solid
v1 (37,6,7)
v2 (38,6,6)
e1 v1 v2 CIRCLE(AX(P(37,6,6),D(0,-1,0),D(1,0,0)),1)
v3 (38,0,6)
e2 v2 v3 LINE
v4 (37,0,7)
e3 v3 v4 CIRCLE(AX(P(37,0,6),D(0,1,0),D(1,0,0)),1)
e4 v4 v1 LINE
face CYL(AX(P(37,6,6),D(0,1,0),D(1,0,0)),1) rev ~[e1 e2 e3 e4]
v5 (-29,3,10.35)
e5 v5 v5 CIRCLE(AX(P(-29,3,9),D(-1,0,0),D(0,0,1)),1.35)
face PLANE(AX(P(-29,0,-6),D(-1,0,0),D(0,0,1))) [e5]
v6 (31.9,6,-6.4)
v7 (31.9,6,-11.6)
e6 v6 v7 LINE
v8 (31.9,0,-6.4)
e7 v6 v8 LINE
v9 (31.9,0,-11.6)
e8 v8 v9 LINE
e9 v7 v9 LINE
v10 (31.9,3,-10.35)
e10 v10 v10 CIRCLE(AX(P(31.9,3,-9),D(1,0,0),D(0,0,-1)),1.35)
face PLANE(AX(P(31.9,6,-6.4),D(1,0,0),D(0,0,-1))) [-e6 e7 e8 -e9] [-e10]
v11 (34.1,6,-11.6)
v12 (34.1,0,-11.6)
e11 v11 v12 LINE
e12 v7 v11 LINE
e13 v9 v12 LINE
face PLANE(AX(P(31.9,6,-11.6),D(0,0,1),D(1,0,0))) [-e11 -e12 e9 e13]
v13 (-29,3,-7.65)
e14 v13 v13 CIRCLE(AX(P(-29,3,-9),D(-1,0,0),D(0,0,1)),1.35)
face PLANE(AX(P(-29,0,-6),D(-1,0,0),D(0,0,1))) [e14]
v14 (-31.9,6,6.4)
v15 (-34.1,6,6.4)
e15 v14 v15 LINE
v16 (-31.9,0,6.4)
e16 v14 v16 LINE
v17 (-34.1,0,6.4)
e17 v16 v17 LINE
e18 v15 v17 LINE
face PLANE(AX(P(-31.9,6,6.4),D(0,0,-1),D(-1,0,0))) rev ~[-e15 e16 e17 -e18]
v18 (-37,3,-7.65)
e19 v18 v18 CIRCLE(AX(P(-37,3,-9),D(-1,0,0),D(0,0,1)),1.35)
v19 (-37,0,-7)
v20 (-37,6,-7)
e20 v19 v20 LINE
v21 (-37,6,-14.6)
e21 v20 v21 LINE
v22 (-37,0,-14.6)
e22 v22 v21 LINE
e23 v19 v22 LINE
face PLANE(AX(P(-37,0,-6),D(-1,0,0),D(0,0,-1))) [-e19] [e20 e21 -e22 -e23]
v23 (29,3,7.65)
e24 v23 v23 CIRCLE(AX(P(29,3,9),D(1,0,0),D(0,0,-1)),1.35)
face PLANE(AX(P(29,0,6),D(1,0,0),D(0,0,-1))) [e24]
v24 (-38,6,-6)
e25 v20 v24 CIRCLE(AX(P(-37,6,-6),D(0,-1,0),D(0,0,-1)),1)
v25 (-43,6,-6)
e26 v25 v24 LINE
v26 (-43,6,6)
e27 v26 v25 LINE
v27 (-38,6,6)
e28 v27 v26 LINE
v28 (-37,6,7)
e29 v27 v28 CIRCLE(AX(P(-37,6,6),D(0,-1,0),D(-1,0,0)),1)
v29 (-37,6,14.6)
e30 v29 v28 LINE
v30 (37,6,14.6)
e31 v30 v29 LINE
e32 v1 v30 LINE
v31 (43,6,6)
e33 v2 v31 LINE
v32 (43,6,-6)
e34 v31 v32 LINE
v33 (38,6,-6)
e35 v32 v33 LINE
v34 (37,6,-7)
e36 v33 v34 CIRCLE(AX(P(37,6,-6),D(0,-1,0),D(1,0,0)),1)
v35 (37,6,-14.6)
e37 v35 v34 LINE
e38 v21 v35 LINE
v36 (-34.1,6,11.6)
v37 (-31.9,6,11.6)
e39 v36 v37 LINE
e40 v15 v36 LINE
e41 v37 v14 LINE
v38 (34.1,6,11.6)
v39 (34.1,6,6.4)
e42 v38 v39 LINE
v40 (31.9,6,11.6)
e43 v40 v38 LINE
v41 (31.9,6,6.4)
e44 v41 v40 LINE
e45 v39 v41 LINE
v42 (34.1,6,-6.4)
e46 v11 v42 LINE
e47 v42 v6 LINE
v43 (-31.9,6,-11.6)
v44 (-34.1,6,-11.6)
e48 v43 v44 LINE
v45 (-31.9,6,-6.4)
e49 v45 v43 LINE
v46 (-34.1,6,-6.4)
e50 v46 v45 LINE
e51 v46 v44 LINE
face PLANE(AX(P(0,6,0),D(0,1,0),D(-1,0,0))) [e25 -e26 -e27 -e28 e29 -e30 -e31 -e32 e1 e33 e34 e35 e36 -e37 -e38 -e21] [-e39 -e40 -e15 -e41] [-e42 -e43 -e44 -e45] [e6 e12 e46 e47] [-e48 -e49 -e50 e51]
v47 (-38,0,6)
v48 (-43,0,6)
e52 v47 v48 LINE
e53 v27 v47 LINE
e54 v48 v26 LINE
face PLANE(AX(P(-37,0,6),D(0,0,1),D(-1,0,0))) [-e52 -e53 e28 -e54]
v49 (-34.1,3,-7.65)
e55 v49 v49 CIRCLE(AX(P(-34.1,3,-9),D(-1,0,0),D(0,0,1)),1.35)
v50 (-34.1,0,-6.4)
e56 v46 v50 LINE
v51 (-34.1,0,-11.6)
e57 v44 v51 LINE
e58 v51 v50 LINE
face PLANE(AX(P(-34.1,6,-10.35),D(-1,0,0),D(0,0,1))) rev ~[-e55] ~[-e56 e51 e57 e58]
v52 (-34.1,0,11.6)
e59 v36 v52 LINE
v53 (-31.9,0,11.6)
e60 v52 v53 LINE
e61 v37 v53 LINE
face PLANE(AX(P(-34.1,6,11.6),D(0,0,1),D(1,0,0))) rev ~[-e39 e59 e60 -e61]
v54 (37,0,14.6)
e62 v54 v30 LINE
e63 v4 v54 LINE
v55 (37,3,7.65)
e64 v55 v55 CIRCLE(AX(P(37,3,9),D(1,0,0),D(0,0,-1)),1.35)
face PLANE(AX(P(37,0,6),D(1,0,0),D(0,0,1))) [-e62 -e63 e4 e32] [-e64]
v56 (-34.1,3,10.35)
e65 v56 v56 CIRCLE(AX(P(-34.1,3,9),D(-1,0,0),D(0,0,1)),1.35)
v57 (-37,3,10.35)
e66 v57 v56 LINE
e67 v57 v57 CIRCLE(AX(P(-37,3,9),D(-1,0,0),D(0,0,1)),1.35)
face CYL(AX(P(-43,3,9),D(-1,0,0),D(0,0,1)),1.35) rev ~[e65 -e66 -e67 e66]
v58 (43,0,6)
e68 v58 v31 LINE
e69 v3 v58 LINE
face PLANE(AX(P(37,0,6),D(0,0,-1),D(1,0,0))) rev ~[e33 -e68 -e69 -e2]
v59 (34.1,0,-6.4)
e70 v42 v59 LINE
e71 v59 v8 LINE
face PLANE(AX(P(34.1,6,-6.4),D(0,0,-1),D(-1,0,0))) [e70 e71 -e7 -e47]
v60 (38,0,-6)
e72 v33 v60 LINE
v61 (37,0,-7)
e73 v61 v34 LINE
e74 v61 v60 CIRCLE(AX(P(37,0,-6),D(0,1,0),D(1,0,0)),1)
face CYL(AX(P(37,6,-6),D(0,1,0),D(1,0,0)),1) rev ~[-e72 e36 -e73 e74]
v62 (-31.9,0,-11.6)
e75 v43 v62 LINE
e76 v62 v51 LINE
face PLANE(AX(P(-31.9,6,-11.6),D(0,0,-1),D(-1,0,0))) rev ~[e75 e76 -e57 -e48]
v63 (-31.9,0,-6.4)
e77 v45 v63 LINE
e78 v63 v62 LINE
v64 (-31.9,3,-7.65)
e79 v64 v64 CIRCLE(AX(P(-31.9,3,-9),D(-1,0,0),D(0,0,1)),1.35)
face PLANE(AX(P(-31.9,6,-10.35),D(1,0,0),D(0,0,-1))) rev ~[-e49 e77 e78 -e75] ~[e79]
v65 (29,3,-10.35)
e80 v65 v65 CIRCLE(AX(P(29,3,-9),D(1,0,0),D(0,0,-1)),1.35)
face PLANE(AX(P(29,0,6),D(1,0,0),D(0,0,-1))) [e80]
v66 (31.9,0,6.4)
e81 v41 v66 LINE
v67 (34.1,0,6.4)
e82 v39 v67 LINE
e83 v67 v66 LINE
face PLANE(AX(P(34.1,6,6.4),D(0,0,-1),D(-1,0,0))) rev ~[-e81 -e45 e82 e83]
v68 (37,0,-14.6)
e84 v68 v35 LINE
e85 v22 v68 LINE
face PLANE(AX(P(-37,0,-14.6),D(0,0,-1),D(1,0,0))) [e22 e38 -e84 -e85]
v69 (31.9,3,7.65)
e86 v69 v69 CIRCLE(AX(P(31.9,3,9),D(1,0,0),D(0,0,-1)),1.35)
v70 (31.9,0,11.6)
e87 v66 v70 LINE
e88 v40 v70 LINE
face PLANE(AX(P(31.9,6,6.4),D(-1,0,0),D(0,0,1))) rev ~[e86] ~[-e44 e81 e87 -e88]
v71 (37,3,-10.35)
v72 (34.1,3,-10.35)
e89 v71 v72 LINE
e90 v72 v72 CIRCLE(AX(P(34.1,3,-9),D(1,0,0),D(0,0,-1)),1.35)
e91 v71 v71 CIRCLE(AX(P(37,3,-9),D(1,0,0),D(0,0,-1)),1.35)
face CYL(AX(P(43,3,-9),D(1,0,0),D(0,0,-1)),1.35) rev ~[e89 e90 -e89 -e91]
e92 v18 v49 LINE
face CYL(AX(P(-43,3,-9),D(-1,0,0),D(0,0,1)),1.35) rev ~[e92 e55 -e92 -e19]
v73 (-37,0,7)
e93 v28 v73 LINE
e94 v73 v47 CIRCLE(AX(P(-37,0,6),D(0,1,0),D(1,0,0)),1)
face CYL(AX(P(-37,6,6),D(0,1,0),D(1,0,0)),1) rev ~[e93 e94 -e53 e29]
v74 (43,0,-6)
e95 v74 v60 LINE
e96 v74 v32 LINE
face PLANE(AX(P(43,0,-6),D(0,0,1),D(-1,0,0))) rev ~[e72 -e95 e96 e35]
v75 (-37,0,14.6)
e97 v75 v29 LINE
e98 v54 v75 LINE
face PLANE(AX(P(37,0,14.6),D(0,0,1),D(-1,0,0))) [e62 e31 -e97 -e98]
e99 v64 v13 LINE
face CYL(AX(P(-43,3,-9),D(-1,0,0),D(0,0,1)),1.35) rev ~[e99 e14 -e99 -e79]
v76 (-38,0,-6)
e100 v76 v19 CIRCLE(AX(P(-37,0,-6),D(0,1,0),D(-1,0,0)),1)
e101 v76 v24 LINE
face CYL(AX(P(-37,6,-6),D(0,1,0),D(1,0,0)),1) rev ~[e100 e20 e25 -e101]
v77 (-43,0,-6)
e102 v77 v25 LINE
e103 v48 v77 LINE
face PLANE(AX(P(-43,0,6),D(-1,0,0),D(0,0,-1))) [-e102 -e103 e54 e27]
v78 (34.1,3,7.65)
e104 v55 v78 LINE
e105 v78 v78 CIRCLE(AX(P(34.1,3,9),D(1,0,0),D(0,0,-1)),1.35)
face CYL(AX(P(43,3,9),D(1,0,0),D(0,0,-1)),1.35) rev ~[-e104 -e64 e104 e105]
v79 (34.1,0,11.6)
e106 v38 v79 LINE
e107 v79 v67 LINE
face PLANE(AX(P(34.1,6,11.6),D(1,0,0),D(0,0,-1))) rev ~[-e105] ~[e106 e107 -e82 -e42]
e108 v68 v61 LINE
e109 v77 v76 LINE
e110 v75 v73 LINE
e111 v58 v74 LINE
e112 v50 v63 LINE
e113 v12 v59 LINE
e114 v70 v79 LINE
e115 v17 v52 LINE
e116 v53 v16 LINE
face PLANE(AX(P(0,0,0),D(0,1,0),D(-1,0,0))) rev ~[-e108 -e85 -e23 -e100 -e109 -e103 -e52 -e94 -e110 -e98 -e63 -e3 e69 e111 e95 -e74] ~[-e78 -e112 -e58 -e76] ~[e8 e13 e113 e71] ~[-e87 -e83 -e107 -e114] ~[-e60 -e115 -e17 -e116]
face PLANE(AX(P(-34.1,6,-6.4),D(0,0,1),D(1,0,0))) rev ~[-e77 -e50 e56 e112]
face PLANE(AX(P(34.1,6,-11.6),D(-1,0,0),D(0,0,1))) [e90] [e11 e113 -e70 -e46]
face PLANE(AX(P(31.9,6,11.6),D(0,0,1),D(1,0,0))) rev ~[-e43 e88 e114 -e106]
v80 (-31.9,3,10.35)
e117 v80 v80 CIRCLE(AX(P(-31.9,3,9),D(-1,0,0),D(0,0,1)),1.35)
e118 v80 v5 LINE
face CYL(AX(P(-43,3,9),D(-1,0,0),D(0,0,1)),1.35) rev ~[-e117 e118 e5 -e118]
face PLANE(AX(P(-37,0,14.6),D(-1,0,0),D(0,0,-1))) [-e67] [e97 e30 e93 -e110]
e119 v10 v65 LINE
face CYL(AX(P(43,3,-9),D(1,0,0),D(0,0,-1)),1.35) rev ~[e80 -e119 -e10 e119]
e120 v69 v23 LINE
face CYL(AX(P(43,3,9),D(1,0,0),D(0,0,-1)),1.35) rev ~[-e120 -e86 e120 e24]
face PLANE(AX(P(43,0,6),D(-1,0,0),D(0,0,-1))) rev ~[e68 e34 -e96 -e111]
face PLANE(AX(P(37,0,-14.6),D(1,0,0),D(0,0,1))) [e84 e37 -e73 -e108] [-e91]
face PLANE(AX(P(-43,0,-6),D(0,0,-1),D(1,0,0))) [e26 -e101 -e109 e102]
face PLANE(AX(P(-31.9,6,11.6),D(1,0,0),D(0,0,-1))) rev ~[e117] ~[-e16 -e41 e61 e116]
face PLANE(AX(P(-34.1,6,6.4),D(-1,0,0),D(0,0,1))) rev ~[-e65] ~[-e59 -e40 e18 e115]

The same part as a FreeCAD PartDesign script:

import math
import FreeCAD as App
import Part
import Sketcher
Q = App.Units.Quantity

doc = App.newDocument("Part")
body = doc.addObject("PartDesign::Body", "Body")

# Sketch on XZ plane
sketch1 = doc.addObject("Sketcher::SketchObject", "Sketch")
body.addObject(sketch1)
sketch1.AttachmentSupport = (doc.XZ_Plane, [""])
sketch1.MapMode = "FlatFace"
sketch1.addGeometry(Part.LineSegment(App.Vector(-37, 15, 0), App.Vector(37, 15, 0)), False)
sketch1.addGeometry(Part.LineSegment(App.Vector(37, 15, 0), App.Vector(37, 6, 0)), False)
sketch1.addGeometry(Part.LineSegment(App.Vector(37, 6, 0), App.Vector(43, 6, 0)), False)
sketch1.addGeometry(Part.LineSegment(App.Vector(43, 6, 0), App.Vector(43, -6, 0)), False)
sketch1.addGeometry(Part.LineSegment(App.Vector(43, -6, 0), App.Vector(37, -6, 0)), False)
sketch1.addGeometry(Part.LineSegment(App.Vector(37, -6, 0), App.Vector(37, -15, 0)), False)
sketch1.addGeometry(Part.LineSegment(App.Vector(37, -15, 0), App.Vector(-37, -15, 0)), False)
sketch1.addGeometry(Part.LineSegment(App.Vector(-37, -15, 0), App.Vector(-37, -6, 0)), False)
sketch1.addGeometry(Part.LineSegment(App.Vector(-37, -6, 0), App.Vector(-43, -6, 0)), False)
sketch1.addGeometry(Part.LineSegment(App.Vector(-43, -6, 0), App.Vector(-43, 6, 0)), False)
sketch1.addGeometry(Part.LineSegment(App.Vector(-43, 6, 0), App.Vector(-37, 6, 0)), False)
sketch1.addGeometry(Part.LineSegment(App.Vector(-37, 6, 0), App.Vector(-37, 15, 0)), False)
sketch1.addConstraint(Sketcher.Constraint("Coincident", 0, 2, 1, 1))
sketch1.addConstraint(Sketcher.Constraint("Coincident", 1, 2, 2, 1))
sketch1.addConstraint(Sketcher.Constraint("Coincident", 2, 2, 3, 1))
sketch1.addConstraint(Sketcher.Constraint("Coincident", 3, 2, 4, 1))
sketch1.addConstraint(Sketcher.Constraint("Coincident", 4, 2, 5, 1))
sketch1.addConstraint(Sketcher.Constraint("Coincident", 5, 2, 6, 1))
sketch1.addConstraint(Sketcher.Constraint("Coincident", 6, 2, 7, 1))
sketch1.addConstraint(Sketcher.Constraint("Coincident", 7, 2, 8, 1))
sketch1.addConstraint(Sketcher.Constraint("Coincident", 8, 2, 9, 1))
sketch1.addConstraint(Sketcher.Constraint("Coincident", 9, 2, 10, 1))
sketch1.addConstraint(Sketcher.Constraint("Coincident", 10, 2, 11, 1))
sketch1.addConstraint(Sketcher.Constraint("Coincident", 11, 2, 0, 1))
sketch1.addConstraint(Sketcher.Constraint("Horizontal", 0))
sketch1.addConstraint(Sketcher.Constraint("Vertical", 1))
sketch1.addConstraint(Sketcher.Constraint("Horizontal", 2))
sketch1.addConstraint(Sketcher.Constraint("Vertical", 3))
sketch1.addConstraint(Sketcher.Constraint("Horizontal", 4))
sketch1.addConstraint(Sketcher.Constraint("Vertical", 5))
sketch1.addConstraint(Sketcher.Constraint("Horizontal", 6))
sketch1.addConstraint(Sketcher.Constraint("Vertical", 7))
sketch1.addConstraint(Sketcher.Constraint("Horizontal", 8))
sketch1.addConstraint(Sketcher.Constraint("Vertical", 9))
sketch1.addConstraint(Sketcher.Constraint("Horizontal", 10))
sketch1.addConstraint(Sketcher.Constraint("Vertical", 11))
sketch1.addConstraint(Sketcher.Constraint("Symmetric", 0, 2, 6, 2, -1, 1))
sketch1.addConstraint(Sketcher.Constraint("Symmetric", 2, 2, 8, 2, -1, 1))
sketch1.addConstraint(Sketcher.Constraint("Symmetric", 4, 2, 10, 2, -1, 1))
sketch1.addConstraint(Sketcher.Constraint("Symmetric", 4, 2, 7, 2, -2))
sketch1.addConstraint(Sketcher.Constraint("DistanceX", 0, 1, 0, 2, Q("74 mm")))
sketch1.addConstraint(Sketcher.Constraint("DistanceX", 2, 1, 2, 2, Q("6 mm")))
sketch1.addConstraint(Sketcher.Constraint("DistanceY", 3, 2, 3, 1, Q("12 mm")))
sketch1.addConstraint(Sketcher.Constraint("DistanceY", 5, 2, 0, 2, Q("29.2 mm")))
pad1 = doc.addObject("PartDesign::Pad", "Pad")
body.addObject(pad1)
pad1.Profile = sketch1
pad1.Length = 6
pad1.Reversed = True

# Sketch on YZ plane
sketch2 = doc.addObject("Sketcher::SketchObject", "Sketch001")
body.addObject(sketch2)
sketch2.AttachmentSupport = (doc.YZ_Plane, [""])
sketch2.MapMode = "FlatFace"
sketch2.AttachmentOffset = App.Placement(App.Vector(0, 0, 43), App.Rotation())
sketch2.addGeometry(Part.Circle(App.Vector(3, -9, 0), App.Vector(0, 0, 1), 1.4), False)
sketch2.addGeometry(Part.Circle(App.Vector(3, 9, 0), App.Vector(0, 0, 1), 1.4), False)
sketch2.addConstraint(Sketcher.Constraint("Equal", 0, 1))
sketch2.addConstraint(Sketcher.Constraint("Symmetric", 0, 3, 1, 3, -1))
sketch2.addConstraint(Sketcher.Constraint("Diameter", 0, Q("2.7 mm")))
sketch2.addConstraint(Sketcher.Constraint("DistanceX", -1, 1, 0, 3, Q("3 mm")))
sketch2.addConstraint(Sketcher.Constraint("DistanceY", 0, 3, -1, 1, Q("9 mm")))
pocket1 = doc.addObject("PartDesign::Pocket", "Pocket")
body.addObject(pocket1)
pocket1.Profile = sketch2
pocket1.Length = 14

# Sketch on YZ plane
sketch3 = doc.addObject("Sketcher::SketchObject", "Sketch002")
body.addObject(sketch3)
sketch3.AttachmentSupport = (doc.YZ_Plane, [""])
sketch3.MapMode = "FlatFace"
sketch3.AttachmentOffset = App.Placement(App.Vector(0, 0, -43), App.Rotation())
sketch3.addGeometry(Part.Circle(App.Vector(3, -9, 0), App.Vector(0, 0, 1), 1.4), False)
sketch3.addGeometry(Part.Circle(App.Vector(3, 9, 0), App.Vector(0, 0, 1), 1.4), False)
sketch3.addConstraint(Sketcher.Constraint("Equal", 0, 1))
sketch3.addConstraint(Sketcher.Constraint("Symmetric", 0, 3, 1, 3, -1))
sketch3.addConstraint(Sketcher.Constraint("Diameter", 0, Q("2.7 mm")))
sketch3.addConstraint(Sketcher.Constraint("DistanceX", -1, 1, 0, 3, Q("3 mm")))
sketch3.addConstraint(Sketcher.Constraint("DistanceY", 0, 3, -1, 1, Q("9 mm")))
pocket2 = doc.addObject("PartDesign::Pocket", "Pocket001")
body.addObject(pocket2)
pocket2.Profile = sketch3
pocket2.Length = 14
pocket2.Reversed = True

# Sketch on XZ plane
sketch4 = doc.addObject("Sketcher::SketchObject", "Sketch003")
body.addObject(sketch4)
sketch4.AttachmentSupport = (doc.XZ_Plane, [""])
sketch4.MapMode = "FlatFace"
sketch4.AttachmentOffset = App.Placement(App.Vector(0, 0, -6), App.Rotation())
sketch4.addGeometry(Part.LineSegment(App.Vector(-34.1, -6.4, 0), App.Vector(-31.9, -6.4, 0)), False)
sketch4.addGeometry(Part.LineSegment(App.Vector(-31.9, -6.4, 0), App.Vector(-31.9, -11.6, 0)), False)
sketch4.addGeometry(Part.LineSegment(App.Vector(-31.9, -11.6, 0), App.Vector(-34.1, -11.6, 0)), False)
sketch4.addGeometry(Part.LineSegment(App.Vector(-34.1, -11.6, 0), App.Vector(-34.1, -6.4, 0)), False)
sketch4.addGeometry(Part.LineSegment(App.Vector(31.9, -6.4, 0), App.Vector(34.1, -6.4, 0)), False)
sketch4.addGeometry(Part.LineSegment(App.Vector(34.1, -6.4, 0), App.Vector(34.1, -11.6, 0)), False)
sketch4.addGeometry(Part.LineSegment(App.Vector(34.1, -11.6, 0), App.Vector(31.9, -11.6, 0)), False)
sketch4.addGeometry(Part.LineSegment(App.Vector(31.9, -11.6, 0), App.Vector(31.9, -6.4, 0)), False)
sketch4.addGeometry(Part.LineSegment(App.Vector(31.9, 6.4, 0), App.Vector(31.9, 11.6, 0)), False)
sketch4.addGeometry(Part.LineSegment(App.Vector(31.9, 11.6, 0), App.Vector(34.1, 11.6, 0)), False)
sketch4.addGeometry(Part.LineSegment(App.Vector(34.1, 11.6, 0), App.Vector(34.1, 6.4, 0)), False)
sketch4.addGeometry(Part.LineSegment(App.Vector(34.1, 6.4, 0), App.Vector(31.9, 6.4, 0)), False)
sketch4.addGeometry(Part.LineSegment(App.Vector(-34.1, 6.4, 0), App.Vector(-34.1, 11.6, 0)), False)
sketch4.addGeometry(Part.LineSegment(App.Vector(-34.1, 11.6, 0), App.Vector(-31.9, 11.6, 0)), False)
sketch4.addGeometry(Part.LineSegment(App.Vector(-31.9, 11.6, 0), App.Vector(-31.9, 6.4, 0)), False)
sketch4.addGeometry(Part.LineSegment(App.Vector(-31.9, 6.4, 0), App.Vector(-34.1, 6.4, 0)), False)
sketch4.addConstraint(Sketcher.Constraint("Coincident", 0, 2, 1, 1))
sketch4.addConstraint(Sketcher.Constraint("Coincident", 1, 2, 2, 1))
sketch4.addConstraint(Sketcher.Constraint("Coincident", 2, 2, 3, 1))
sketch4.addConstraint(Sketcher.Constraint("Coincident", 3, 2, 0, 1))
sketch4.addConstraint(Sketcher.Constraint("Coincident", 4, 2, 5, 1))
sketch4.addConstraint(Sketcher.Constraint("Coincident", 5, 2, 6, 1))
sketch4.addConstraint(Sketcher.Constraint("Coincident", 6, 2, 7, 1))
sketch4.addConstraint(Sketcher.Constraint("Coincident", 7, 2, 4, 1))
sketch4.addConstraint(Sketcher.Constraint("Coincident", 8, 2, 9, 1))
sketch4.addConstraint(Sketcher.Constraint("Coincident", 9, 2, 10, 1))
sketch4.addConstraint(Sketcher.Constraint("Coincident", 10, 2, 11, 1))
sketch4.addConstraint(Sketcher.Constraint("Coincident", 11, 2, 8, 1))
sketch4.addConstraint(Sketcher.Constraint("Coincident", 12, 2, 13, 1))
sketch4.addConstraint(Sketcher.Constraint("Coincident", 13, 2, 14, 1))
sketch4.addConstraint(Sketcher.Constraint("Coincident", 14, 2, 15, 1))
sketch4.addConstraint(Sketcher.Constraint("Coincident", 15, 2, 12, 1))
sketch4.addConstraint(Sketcher.Constraint("Horizontal", 0))
sketch4.addConstraint(Sketcher.Constraint("Vertical", 1))
sketch4.addConstraint(Sketcher.Constraint("Horizontal", 2))
sketch4.addConstraint(Sketcher.Constraint("Vertical", 3))
sketch4.addConstraint(Sketcher.Constraint("Horizontal", 4))
sketch4.addConstraint(Sketcher.Constraint("Vertical", 5))
sketch4.addConstraint(Sketcher.Constraint("Horizontal", 6))
sketch4.addConstraint(Sketcher.Constraint("Vertical", 7))
sketch4.addConstraint(Sketcher.Constraint("Vertical", 8))
sketch4.addConstraint(Sketcher.Constraint("Horizontal", 9))
sketch4.addConstraint(Sketcher.Constraint("Vertical", 10))
sketch4.addConstraint(Sketcher.Constraint("Horizontal", 11))
sketch4.addConstraint(Sketcher.Constraint("Vertical", 12))
sketch4.addConstraint(Sketcher.Constraint("Horizontal", 13))
sketch4.addConstraint(Sketcher.Constraint("Vertical", 14))
sketch4.addConstraint(Sketcher.Constraint("Horizontal", 15))
sketch4.addConstraint(Sketcher.Constraint("Symmetric", 1, 2, 8, 2, -1, 1))
sketch4.addConstraint(Sketcher.Constraint("Symmetric", 3, 2, 10, 2, -1, 1))
sketch4.addConstraint(Sketcher.Constraint("Symmetric", 5, 2, 12, 2, -1, 1))
sketch4.addConstraint(Sketcher.Constraint("Symmetric", 7, 2, 14, 2, -1, 1))
sketch4.addConstraint(Sketcher.Constraint("Symmetric", 3, 2, 4, 2, -2))
sketch4.addConstraint(Sketcher.Constraint("Symmetric", 1, 2, 6, 2, -2))
sketch4.addConstraint(Sketcher.Constraint("DistanceX", 0, 1, 0, 2, Q("2.2 mm")))
sketch4.addConstraint(Sketcher.Constraint("DistanceY", 1, 2, 1, 1, Q("5.2 mm")))
sketch4.addConstraint(Sketcher.Constraint("DistanceX", 0, 2, 4, 2, Q("66 mm")))
sketch4.addConstraint(Sketcher.Constraint("DistanceY", 7, 2, 8, 2, Q("18 mm")))
pocket3 = doc.addObject("PartDesign::Pocket", "Pocket002")
body.addObject(pocket3)
pocket3.Profile = sketch4
pocket3.Length = 14
pocket3.Reversed = True

# Sketch on XZ plane
sketch5 = doc.addObject("Sketcher::SketchObject", "Sketch004")
body.addObject(sketch5)
sketch5.AttachmentSupport = (doc.XZ_Plane, [""])
sketch5.MapMode = "FlatFace"
sketch5.AttachmentOffset = App.Placement(App.Vector(0, 0, -6), App.Rotation())
sketch5.addGeometry(Part.Circle(App.Vector(37, 6, 0), App.Vector(0, 0, 1), 1), False)
sketch5.addGeometry(Part.LineSegment(App.Vector(-37, 6, 0), App.Vector(-37, 7, 0)), False)
sketch5.addGeometry(Part.ArcOfCircle(Part.Circle(App.Vector(-37, 6, 0), App.Vector(0, 0, 1), 1), math.radians(180), math.radians(450)), False)
sketch5.addGeometry(Part.LineSegment(App.Vector(-38, 6, 0), App.Vector(-37, 6, 0)), False)
sketch5.addGeometry(Part.Circle(App.Vector(37, -6, 0), App.Vector(0, 0, 1), 1), False)
sketch5.addGeometry(Part.Circle(App.Vector(-37, -6, 0), App.Vector(0, 0, 1), 1), False)
sketch5.addConstraint(Sketcher.Constraint("Coincident", 1, 2, 2, 2))
sketch5.addConstraint(Sketcher.Constraint("Coincident", 2, 1, 3, 1))
sketch5.addConstraint(Sketcher.Constraint("Coincident", 3, 2, 1, 1))
sketch5.addConstraint(Sketcher.Constraint("Vertical", 1))
sketch5.addConstraint(Sketcher.Constraint("Horizontal", 3))
sketch5.addConstraint(Sketcher.Constraint("Coincident", 3, 2, 2, 3))
sketch5.addConstraint(Sketcher.Constraint("Equal", 0, 2))
sketch5.addConstraint(Sketcher.Constraint("Equal", 2, 4))
sketch5.addConstraint(Sketcher.Constraint("Equal", 4, 5))
sketch5.addConstraint(Sketcher.Constraint("Symmetric", 2, 3, 4, 3, -1, 1))
sketch5.addConstraint(Sketcher.Constraint("Symmetric", 0, 3, 5, 3, -1, 1))
sketch5.addConstraint(Sketcher.Constraint("Symmetric", 0, 3, 2, 3, -2))
sketch5.addConstraint(Sketcher.Constraint("Diameter", 0, Q("2 mm")))
sketch5.addConstraint(Sketcher.Constraint("DistanceX", -1, 1, 0, 3, Q("37 mm")))
sketch5.addConstraint(Sketcher.Constraint("DistanceY", -1, 1, 0, 3, Q("6 mm")))
pocket4 = doc.addObject("PartDesign::Pocket", "Pocket003")
body.addObject(pocket4)
pocket4.Profile = sketch5
pocket4.Type = "ThroughAll"
pocket4.Reversed = True

doc.recompute()
